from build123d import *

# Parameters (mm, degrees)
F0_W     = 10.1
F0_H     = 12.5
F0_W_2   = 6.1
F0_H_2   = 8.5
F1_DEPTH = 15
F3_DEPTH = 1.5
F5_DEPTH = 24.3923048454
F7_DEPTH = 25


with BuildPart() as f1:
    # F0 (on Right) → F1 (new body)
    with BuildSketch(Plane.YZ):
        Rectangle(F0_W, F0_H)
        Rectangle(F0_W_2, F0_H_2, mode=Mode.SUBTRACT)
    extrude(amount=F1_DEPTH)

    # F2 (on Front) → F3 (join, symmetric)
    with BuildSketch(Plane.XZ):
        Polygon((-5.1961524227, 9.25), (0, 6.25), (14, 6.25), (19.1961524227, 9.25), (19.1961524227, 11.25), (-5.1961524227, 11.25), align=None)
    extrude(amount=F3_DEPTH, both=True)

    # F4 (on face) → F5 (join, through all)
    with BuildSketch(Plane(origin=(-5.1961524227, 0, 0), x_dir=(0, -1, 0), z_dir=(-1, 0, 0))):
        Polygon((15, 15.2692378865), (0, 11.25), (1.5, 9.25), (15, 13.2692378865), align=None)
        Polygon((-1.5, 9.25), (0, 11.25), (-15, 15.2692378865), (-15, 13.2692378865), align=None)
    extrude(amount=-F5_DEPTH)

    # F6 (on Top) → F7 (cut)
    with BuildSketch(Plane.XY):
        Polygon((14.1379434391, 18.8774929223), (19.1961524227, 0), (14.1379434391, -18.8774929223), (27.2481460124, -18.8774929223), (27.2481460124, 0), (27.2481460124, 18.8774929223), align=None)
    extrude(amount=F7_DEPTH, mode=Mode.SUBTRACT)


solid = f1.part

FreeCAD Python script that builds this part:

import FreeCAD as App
import Part
import Sketcher

V = App.Vector
Q = App.Units.Quantity

doc = App.newDocument("Part")
body = doc.addObject("PartDesign::Body", "Body")

sketch1 = body.newObject("Sketcher::SketchObject", "Sketch")
sketch1.AttachmentSupport = (doc.getObject("YZ_Plane"), [""])
sketch1.MapMode = "FlatFace"
sketch1.addGeometry(Part.LineSegment(V(-5, 6, 0), V(-5, -6, 0)), False)
sketch1.addGeometry(Part.LineSegment(V(-5, -6, 0), V(5, -6, 0)), False)
sketch1.addGeometry(Part.LineSegment(V(5, -6, 0), V(5, 6, 0)), False)
sketch1.addGeometry(Part.LineSegment(V(5, 6, 0), V(-5, 6, 0)), False)
sketch1.addGeometry(Part.LineSegment(V(3, -4, 0), V(-3, -4, 0)), False)
sketch1.addGeometry(Part.LineSegment(V(-3, -4, 0), V(-3, 4, 0)), False)
sketch1.addGeometry(Part.LineSegment(V(-3, 4, 0), V(3, 4, 0)), False)
sketch1.addGeometry(Part.LineSegment(V(3, 4, 0), V(3, -4, 0)), False)
sketch1.addConstraint(Sketcher.Constraint("Coincident", 0, 2, 1, 1))
sketch1.addConstraint(Sketcher.Constraint("Coincident", 1, 2, 2, 1))
sketch1.addConstraint(Sketcher.Constraint("Coincident", 2, 2, 3, 1))
sketch1.addConstraint(Sketcher.Constraint("Coincident", 3, 2, 0, 1))
sketch1.addConstraint(Sketcher.Constraint("Coincident", 4, 2, 5, 1))
sketch1.addConstraint(Sketcher.Constraint("Coincident", 5, 2, 6, 1))
sketch1.addConstraint(Sketcher.Constraint("Coincident", 6, 2, 7, 1))
sketch1.addConstraint(Sketcher.Constraint("Coincident", 7, 2, 4, 1))
sketch1.addConstraint(Sketcher.Constraint("Vertical", 0))
sketch1.addConstraint(Sketcher.Constraint("Horizontal", 1))
sketch1.addConstraint(Sketcher.Constraint("Vertical", 2))
sketch1.addConstraint(Sketcher.Constraint("Horizontal", 3))
sketch1.addConstraint(Sketcher.Constraint("Horizontal", 4))
sketch1.addConstraint(Sketcher.Constraint("Vertical", 5))
sketch1.addConstraint(Sketcher.Constraint("Horizontal", 6))
sketch1.addConstraint(Sketcher.Constraint("Vertical", 7))
sketch1.addConstraint(Sketcher.Constraint("Symmetric", 0, 2, 2, 2, -1, 1))
sketch1.addConstraint(Sketcher.Constraint("Symmetric", 4, 2, 6, 2, -1, 1))
sketch1.addConstraint(Sketcher.Constraint("DistanceX", 1, 1, 1, 2, Q("10.1 mm")))
sketch1.addConstraint(Sketcher.Constraint("DistanceX", 4, 2, 4, 1, Q("6.1 mm")))
sketch1.addConstraint(Sketcher.Constraint("DistanceY", 0, 2, 0, 1, Q("12.5 mm")))
sketch1.addConstraint(Sketcher.Constraint("DistanceY", 5, 1, 5, 2, Q("8.5 mm")))
pad1 = body.newObject("PartDesign::Pad", "Pad")
pad1.Profile = sketch1
pad1.Length = 15

sketch2 = body.newObject("Sketcher::SketchObject", "Sketch001")
sketch2.AttachmentSupport = (doc.getObject("XZ_Plane"), [""])
sketch2.MapMode = "FlatFace"
sketch2.addGeometry(Part.LineSegment(V(-5.2, 9.2, 0), V(0, 6.2, 0)), False)
sketch2.addGeometry(Part.LineSegment(V(0, 6.2, 0), V(14, 6.2, 0)), False)
sketch2.addGeometry(Part.LineSegment(V(14, 6.2, 0), V(19.2, 9.2, 0)), False)
sketch2.addGeometry(Part.LineSegment(V(19.2, 9.2, 0), V(19.2, 11.2, 0)), False)
sketch2.addGeometry(Part.LineSegment(V(19.2, 11.2, 0), V(-5.2, 11.2, 0)), False)
sketch2.addGeometry(Part.LineSegment(V(-5.2, 11.2, 0), V(-5.2, 9.2, 0)), False)
sketch2.addConstraint(Sketcher.Constraint("Coincident", 0, 2, 1, 1))
sketch2.addConstraint(Sketcher.Constraint("Coincident", 1, 2, 2, 1))
sketch2.addConstraint(Sketcher.Constraint("Coincident", 2, 2, 3, 1))
sketch2.addConstraint(Sketcher.Constraint("Coincident", 3, 2, 4, 1))
sketch2.addConstraint(Sketcher.Constraint("Coincident", 4, 2, 5, 1))
sketch2.addConstraint(Sketcher.Constraint("Coincident", 5, 2, 0, 1))
sketch2.addConstraint(Sketcher.Constraint("Horizontal", 1))
sketch2.addConstraint(Sketcher.Constraint("Vertical", 3))
sketch2.addConstraint(Sketcher.Constraint("Horizontal", 4))
sketch2.addConstraint(Sketcher.Constraint("Vertical", 5))
sketch2.addConstraint(Sketcher.Constraint("PointOnObject", 0, 2, -2))
sketch2.addConstraint(Sketcher.Constraint("Horizontal", 2, 2, 5, 2))
sketch2.addConstraint(Sketcher.Constraint("Equal", 0, 2))
sketch2.addConstraint(Sketcher.Constraint("DistanceX", 1, 1, 1, 2, Q("14 mm")))
sketch2.addConstraint(Sketcher.Constraint("DistanceY", 3, 1, 3, 2, Q("2 mm")))
sketch2.addConstraint(Sketcher.Constraint("Angle", 0, Q("-30 deg")))
sketch2.addConstraint(Sketcher.Constraint("Distance", 0, Q("6 mm")))
sketch2.addConstraint(Sketcher.Constraint("DistanceY", -1, 1, 0, 2, Q("6.25 mm")))
pad2 = body.newObject("PartDesign::Pad", "Pad001")
pad2.Profile = sketch2
pad2.Length = 3
pad2.Midplane = True

sketch3 = body.newObject("Sketcher::SketchObject", "Sketch002")
sketch3.AttachmentSupport = (doc.getObject("YZ_Plane"), [""])
sketch3.MapMode = "FlatFace"
sketch3.AttachmentOffset = App.Placement(V(0, 0, -5.196152), App.Rotation())
sketch3.addGeometry(Part.LineSegment(V(-15, 15.3, 0), V(0, 11.2, 0)), False)
sketch3.addGeometry(Part.LineSegment(V(0, 11.2, 0), V(-1.5, 9.2, 0)), False)
sketch3.addGeometry(Part.LineSegment(V(-1.5, 9.2, 0), V(-15, 13.3, 0)), False)
sketch3.addGeometry(Part.LineSegment(V(-15, 13.3, 0), V(-15, 15.3, 0)), False)
sketch3.addGeometry(Part.LineSegment(V(1.5, 9.2, 0), V(0, 11.2, 0)), False)
sketch3.addGeometry(Part.LineSegment(V(0, 11.2, 0), V(15, 15.3, 0)), False)
sketch3.addGeometry(Part.LineSegment(V(15, 15.3, 0), V(15, 13.3, 0)), False)
sketch3.addGeometry(Part.LineSegment(V(15, 13.3, 0), V(1.5, 9.2, 0)), False)
sketch3.addConstraint(Sketcher.Constraint("Coincident", 0, 2, 1, 1))
sketch3.addConstraint(Sketcher.Constraint("Coincident", 1, 2, 2, 1))
sketch3.addConstraint(Sketcher.Constraint("Coincident", 2, 2, 3, 1))
sketch3.addConstraint(Sketcher.Constraint("Coincident", 3, 2, 0, 1))
sketch3.addConstraint(Sketcher.Constraint("Coincident", 4, 2, 5, 1))
sketch3.addConstraint(Sketcher.Constraint("Coincident", 5, 2, 6, 1))
sketch3.addConstraint(Sketcher.Constraint("Coincident", 6, 2, 7, 1))
sketch3.addConstraint(Sketcher.Constraint("Coincident", 7, 2, 4, 1))
sketch3.addConstraint(Sketcher.Constraint("Vertical", 3))
sketch3.addConstraint(Sketcher.Constraint("Vertical", 6))
sketch3.addConstraint(Sketcher.Constraint("Coincident", 4, 2, 0, 2))
sketch3.addConstraint(Sketcher.Constraint("Symmetric", 3, 2, 5, 2, -2))
sketch3.addConstraint(Sketcher.Constraint("Symmetric", 1, 2, 7, 2, -2))
sketch3.addConstraint(Sketcher.Constraint("PointOnObject", 0, 2, -2))
sketch3.addConstraint(Sketcher.Constraint("Horizontal", 2, 2, 6, 2))
sketch3.addConstraint(Sketcher.Constraint("DistanceY", 3, 1, 3, 2, Q("2 mm")))
sketch3.addConstraint(Sketcher.Constraint("Angle", 0, Q("-15 deg")))
sketch3.addConstraint(Sketcher.Constraint("DistanceX", 2, 2, -1, 1, Q("15 mm")))
sketch3.addConstraint(Sketcher.Constraint("DistanceY", 1, 2, 0, 2, Q("2 mm")))
sketch3.addConstraint(Sketcher.Constraint("DistanceX", 1, 2, 7, 2, Q("3 mm")))
sketch3.addConstraint(Sketcher.Constraint("DistanceY", -1, 1, 0, 2, Q("11.25 mm")))
pad3 = body.newObject("PartDesign::Pad", "Pad002")
pad3.Profile = sketch3
pad3.Length = 24.392305

sketch4 = body.newObject("Sketcher::SketchObject", "Sketch003")
sketch4.AttachmentSupport = (doc.getObject("XY_Plane"), [""])
sketch4.MapMode = "FlatFace"
sketch4.addGeometry(Part.LineSegment(V(14, 19, 0), V(19, 0, 0)), False)
sketch4.addGeometry(Part.LineSegment(V(19, 0, 0), V(14, -19, 0)), False)
sketch4.addGeometry(Part.LineSegment(V(14, -19, 0), V(27, -19, 0)), False)
sketch4.addGeometry(Part.LineSegment(V(27, -19, 0), V(27, 19, 0)), False)
sketch4.addGeometry(Part.LineSegment(V(27, 19, 0), V(14, 19, 0)), False)
sketch4.addConstraint(Sketcher.Constraint("Coincident", 0, 2, 1, 1))
sketch4.addConstraint(Sketcher.Constraint("Coincident", 1, 2, 2, 1))
sketch4.addConstraint(Sketcher.Constraint("Coincident", 2, 2, 3, 1))
sketch4.addConstraint(Sketcher.Constraint("Coincident", 3, 2, 4, 1))
sketch4.addConstraint(Sketcher.Constraint("Coincident", 4, 2, 0, 1))
sketch4.addConstraint(Sketcher.Constraint("Horizontal", 2))
sketch4.addConstraint(Sketcher.Constraint("Vertical", 3))
sketch4.addConstraint(Sketcher.Constraint("Horizontal", 4))
sketch4.addConstraint(Sketcher.Constraint("Symmetric", 1, 2, 4, 2, -1))
sketch4.addConstraint(Sketcher.Constraint("PointOnObject", 0, 2, -1))
sketch4.addConstraint(Sketcher.Constraint("Angle", 0, Q("-75 deg")))
sketch4.addConstraint(Sketcher.Constraint("Distance", 0, Q("19.543419 mm")))
sketch4.addConstraint(Sketcher.Constraint("DistanceX", 2, 1, 2, 2, Q("13.110203 mm")))
sketch4.addConstraint(Sketcher.Constraint("DistanceX", -1, 1, 0, 2, Q("19.196152 mm")))
pocket1 = body.newObject("PartDesign::Pocket", "Pocket")
pocket1.Profile = sketch4
pocket1.Length = 25
pocket1.Reversed = True

doc.recompute()
